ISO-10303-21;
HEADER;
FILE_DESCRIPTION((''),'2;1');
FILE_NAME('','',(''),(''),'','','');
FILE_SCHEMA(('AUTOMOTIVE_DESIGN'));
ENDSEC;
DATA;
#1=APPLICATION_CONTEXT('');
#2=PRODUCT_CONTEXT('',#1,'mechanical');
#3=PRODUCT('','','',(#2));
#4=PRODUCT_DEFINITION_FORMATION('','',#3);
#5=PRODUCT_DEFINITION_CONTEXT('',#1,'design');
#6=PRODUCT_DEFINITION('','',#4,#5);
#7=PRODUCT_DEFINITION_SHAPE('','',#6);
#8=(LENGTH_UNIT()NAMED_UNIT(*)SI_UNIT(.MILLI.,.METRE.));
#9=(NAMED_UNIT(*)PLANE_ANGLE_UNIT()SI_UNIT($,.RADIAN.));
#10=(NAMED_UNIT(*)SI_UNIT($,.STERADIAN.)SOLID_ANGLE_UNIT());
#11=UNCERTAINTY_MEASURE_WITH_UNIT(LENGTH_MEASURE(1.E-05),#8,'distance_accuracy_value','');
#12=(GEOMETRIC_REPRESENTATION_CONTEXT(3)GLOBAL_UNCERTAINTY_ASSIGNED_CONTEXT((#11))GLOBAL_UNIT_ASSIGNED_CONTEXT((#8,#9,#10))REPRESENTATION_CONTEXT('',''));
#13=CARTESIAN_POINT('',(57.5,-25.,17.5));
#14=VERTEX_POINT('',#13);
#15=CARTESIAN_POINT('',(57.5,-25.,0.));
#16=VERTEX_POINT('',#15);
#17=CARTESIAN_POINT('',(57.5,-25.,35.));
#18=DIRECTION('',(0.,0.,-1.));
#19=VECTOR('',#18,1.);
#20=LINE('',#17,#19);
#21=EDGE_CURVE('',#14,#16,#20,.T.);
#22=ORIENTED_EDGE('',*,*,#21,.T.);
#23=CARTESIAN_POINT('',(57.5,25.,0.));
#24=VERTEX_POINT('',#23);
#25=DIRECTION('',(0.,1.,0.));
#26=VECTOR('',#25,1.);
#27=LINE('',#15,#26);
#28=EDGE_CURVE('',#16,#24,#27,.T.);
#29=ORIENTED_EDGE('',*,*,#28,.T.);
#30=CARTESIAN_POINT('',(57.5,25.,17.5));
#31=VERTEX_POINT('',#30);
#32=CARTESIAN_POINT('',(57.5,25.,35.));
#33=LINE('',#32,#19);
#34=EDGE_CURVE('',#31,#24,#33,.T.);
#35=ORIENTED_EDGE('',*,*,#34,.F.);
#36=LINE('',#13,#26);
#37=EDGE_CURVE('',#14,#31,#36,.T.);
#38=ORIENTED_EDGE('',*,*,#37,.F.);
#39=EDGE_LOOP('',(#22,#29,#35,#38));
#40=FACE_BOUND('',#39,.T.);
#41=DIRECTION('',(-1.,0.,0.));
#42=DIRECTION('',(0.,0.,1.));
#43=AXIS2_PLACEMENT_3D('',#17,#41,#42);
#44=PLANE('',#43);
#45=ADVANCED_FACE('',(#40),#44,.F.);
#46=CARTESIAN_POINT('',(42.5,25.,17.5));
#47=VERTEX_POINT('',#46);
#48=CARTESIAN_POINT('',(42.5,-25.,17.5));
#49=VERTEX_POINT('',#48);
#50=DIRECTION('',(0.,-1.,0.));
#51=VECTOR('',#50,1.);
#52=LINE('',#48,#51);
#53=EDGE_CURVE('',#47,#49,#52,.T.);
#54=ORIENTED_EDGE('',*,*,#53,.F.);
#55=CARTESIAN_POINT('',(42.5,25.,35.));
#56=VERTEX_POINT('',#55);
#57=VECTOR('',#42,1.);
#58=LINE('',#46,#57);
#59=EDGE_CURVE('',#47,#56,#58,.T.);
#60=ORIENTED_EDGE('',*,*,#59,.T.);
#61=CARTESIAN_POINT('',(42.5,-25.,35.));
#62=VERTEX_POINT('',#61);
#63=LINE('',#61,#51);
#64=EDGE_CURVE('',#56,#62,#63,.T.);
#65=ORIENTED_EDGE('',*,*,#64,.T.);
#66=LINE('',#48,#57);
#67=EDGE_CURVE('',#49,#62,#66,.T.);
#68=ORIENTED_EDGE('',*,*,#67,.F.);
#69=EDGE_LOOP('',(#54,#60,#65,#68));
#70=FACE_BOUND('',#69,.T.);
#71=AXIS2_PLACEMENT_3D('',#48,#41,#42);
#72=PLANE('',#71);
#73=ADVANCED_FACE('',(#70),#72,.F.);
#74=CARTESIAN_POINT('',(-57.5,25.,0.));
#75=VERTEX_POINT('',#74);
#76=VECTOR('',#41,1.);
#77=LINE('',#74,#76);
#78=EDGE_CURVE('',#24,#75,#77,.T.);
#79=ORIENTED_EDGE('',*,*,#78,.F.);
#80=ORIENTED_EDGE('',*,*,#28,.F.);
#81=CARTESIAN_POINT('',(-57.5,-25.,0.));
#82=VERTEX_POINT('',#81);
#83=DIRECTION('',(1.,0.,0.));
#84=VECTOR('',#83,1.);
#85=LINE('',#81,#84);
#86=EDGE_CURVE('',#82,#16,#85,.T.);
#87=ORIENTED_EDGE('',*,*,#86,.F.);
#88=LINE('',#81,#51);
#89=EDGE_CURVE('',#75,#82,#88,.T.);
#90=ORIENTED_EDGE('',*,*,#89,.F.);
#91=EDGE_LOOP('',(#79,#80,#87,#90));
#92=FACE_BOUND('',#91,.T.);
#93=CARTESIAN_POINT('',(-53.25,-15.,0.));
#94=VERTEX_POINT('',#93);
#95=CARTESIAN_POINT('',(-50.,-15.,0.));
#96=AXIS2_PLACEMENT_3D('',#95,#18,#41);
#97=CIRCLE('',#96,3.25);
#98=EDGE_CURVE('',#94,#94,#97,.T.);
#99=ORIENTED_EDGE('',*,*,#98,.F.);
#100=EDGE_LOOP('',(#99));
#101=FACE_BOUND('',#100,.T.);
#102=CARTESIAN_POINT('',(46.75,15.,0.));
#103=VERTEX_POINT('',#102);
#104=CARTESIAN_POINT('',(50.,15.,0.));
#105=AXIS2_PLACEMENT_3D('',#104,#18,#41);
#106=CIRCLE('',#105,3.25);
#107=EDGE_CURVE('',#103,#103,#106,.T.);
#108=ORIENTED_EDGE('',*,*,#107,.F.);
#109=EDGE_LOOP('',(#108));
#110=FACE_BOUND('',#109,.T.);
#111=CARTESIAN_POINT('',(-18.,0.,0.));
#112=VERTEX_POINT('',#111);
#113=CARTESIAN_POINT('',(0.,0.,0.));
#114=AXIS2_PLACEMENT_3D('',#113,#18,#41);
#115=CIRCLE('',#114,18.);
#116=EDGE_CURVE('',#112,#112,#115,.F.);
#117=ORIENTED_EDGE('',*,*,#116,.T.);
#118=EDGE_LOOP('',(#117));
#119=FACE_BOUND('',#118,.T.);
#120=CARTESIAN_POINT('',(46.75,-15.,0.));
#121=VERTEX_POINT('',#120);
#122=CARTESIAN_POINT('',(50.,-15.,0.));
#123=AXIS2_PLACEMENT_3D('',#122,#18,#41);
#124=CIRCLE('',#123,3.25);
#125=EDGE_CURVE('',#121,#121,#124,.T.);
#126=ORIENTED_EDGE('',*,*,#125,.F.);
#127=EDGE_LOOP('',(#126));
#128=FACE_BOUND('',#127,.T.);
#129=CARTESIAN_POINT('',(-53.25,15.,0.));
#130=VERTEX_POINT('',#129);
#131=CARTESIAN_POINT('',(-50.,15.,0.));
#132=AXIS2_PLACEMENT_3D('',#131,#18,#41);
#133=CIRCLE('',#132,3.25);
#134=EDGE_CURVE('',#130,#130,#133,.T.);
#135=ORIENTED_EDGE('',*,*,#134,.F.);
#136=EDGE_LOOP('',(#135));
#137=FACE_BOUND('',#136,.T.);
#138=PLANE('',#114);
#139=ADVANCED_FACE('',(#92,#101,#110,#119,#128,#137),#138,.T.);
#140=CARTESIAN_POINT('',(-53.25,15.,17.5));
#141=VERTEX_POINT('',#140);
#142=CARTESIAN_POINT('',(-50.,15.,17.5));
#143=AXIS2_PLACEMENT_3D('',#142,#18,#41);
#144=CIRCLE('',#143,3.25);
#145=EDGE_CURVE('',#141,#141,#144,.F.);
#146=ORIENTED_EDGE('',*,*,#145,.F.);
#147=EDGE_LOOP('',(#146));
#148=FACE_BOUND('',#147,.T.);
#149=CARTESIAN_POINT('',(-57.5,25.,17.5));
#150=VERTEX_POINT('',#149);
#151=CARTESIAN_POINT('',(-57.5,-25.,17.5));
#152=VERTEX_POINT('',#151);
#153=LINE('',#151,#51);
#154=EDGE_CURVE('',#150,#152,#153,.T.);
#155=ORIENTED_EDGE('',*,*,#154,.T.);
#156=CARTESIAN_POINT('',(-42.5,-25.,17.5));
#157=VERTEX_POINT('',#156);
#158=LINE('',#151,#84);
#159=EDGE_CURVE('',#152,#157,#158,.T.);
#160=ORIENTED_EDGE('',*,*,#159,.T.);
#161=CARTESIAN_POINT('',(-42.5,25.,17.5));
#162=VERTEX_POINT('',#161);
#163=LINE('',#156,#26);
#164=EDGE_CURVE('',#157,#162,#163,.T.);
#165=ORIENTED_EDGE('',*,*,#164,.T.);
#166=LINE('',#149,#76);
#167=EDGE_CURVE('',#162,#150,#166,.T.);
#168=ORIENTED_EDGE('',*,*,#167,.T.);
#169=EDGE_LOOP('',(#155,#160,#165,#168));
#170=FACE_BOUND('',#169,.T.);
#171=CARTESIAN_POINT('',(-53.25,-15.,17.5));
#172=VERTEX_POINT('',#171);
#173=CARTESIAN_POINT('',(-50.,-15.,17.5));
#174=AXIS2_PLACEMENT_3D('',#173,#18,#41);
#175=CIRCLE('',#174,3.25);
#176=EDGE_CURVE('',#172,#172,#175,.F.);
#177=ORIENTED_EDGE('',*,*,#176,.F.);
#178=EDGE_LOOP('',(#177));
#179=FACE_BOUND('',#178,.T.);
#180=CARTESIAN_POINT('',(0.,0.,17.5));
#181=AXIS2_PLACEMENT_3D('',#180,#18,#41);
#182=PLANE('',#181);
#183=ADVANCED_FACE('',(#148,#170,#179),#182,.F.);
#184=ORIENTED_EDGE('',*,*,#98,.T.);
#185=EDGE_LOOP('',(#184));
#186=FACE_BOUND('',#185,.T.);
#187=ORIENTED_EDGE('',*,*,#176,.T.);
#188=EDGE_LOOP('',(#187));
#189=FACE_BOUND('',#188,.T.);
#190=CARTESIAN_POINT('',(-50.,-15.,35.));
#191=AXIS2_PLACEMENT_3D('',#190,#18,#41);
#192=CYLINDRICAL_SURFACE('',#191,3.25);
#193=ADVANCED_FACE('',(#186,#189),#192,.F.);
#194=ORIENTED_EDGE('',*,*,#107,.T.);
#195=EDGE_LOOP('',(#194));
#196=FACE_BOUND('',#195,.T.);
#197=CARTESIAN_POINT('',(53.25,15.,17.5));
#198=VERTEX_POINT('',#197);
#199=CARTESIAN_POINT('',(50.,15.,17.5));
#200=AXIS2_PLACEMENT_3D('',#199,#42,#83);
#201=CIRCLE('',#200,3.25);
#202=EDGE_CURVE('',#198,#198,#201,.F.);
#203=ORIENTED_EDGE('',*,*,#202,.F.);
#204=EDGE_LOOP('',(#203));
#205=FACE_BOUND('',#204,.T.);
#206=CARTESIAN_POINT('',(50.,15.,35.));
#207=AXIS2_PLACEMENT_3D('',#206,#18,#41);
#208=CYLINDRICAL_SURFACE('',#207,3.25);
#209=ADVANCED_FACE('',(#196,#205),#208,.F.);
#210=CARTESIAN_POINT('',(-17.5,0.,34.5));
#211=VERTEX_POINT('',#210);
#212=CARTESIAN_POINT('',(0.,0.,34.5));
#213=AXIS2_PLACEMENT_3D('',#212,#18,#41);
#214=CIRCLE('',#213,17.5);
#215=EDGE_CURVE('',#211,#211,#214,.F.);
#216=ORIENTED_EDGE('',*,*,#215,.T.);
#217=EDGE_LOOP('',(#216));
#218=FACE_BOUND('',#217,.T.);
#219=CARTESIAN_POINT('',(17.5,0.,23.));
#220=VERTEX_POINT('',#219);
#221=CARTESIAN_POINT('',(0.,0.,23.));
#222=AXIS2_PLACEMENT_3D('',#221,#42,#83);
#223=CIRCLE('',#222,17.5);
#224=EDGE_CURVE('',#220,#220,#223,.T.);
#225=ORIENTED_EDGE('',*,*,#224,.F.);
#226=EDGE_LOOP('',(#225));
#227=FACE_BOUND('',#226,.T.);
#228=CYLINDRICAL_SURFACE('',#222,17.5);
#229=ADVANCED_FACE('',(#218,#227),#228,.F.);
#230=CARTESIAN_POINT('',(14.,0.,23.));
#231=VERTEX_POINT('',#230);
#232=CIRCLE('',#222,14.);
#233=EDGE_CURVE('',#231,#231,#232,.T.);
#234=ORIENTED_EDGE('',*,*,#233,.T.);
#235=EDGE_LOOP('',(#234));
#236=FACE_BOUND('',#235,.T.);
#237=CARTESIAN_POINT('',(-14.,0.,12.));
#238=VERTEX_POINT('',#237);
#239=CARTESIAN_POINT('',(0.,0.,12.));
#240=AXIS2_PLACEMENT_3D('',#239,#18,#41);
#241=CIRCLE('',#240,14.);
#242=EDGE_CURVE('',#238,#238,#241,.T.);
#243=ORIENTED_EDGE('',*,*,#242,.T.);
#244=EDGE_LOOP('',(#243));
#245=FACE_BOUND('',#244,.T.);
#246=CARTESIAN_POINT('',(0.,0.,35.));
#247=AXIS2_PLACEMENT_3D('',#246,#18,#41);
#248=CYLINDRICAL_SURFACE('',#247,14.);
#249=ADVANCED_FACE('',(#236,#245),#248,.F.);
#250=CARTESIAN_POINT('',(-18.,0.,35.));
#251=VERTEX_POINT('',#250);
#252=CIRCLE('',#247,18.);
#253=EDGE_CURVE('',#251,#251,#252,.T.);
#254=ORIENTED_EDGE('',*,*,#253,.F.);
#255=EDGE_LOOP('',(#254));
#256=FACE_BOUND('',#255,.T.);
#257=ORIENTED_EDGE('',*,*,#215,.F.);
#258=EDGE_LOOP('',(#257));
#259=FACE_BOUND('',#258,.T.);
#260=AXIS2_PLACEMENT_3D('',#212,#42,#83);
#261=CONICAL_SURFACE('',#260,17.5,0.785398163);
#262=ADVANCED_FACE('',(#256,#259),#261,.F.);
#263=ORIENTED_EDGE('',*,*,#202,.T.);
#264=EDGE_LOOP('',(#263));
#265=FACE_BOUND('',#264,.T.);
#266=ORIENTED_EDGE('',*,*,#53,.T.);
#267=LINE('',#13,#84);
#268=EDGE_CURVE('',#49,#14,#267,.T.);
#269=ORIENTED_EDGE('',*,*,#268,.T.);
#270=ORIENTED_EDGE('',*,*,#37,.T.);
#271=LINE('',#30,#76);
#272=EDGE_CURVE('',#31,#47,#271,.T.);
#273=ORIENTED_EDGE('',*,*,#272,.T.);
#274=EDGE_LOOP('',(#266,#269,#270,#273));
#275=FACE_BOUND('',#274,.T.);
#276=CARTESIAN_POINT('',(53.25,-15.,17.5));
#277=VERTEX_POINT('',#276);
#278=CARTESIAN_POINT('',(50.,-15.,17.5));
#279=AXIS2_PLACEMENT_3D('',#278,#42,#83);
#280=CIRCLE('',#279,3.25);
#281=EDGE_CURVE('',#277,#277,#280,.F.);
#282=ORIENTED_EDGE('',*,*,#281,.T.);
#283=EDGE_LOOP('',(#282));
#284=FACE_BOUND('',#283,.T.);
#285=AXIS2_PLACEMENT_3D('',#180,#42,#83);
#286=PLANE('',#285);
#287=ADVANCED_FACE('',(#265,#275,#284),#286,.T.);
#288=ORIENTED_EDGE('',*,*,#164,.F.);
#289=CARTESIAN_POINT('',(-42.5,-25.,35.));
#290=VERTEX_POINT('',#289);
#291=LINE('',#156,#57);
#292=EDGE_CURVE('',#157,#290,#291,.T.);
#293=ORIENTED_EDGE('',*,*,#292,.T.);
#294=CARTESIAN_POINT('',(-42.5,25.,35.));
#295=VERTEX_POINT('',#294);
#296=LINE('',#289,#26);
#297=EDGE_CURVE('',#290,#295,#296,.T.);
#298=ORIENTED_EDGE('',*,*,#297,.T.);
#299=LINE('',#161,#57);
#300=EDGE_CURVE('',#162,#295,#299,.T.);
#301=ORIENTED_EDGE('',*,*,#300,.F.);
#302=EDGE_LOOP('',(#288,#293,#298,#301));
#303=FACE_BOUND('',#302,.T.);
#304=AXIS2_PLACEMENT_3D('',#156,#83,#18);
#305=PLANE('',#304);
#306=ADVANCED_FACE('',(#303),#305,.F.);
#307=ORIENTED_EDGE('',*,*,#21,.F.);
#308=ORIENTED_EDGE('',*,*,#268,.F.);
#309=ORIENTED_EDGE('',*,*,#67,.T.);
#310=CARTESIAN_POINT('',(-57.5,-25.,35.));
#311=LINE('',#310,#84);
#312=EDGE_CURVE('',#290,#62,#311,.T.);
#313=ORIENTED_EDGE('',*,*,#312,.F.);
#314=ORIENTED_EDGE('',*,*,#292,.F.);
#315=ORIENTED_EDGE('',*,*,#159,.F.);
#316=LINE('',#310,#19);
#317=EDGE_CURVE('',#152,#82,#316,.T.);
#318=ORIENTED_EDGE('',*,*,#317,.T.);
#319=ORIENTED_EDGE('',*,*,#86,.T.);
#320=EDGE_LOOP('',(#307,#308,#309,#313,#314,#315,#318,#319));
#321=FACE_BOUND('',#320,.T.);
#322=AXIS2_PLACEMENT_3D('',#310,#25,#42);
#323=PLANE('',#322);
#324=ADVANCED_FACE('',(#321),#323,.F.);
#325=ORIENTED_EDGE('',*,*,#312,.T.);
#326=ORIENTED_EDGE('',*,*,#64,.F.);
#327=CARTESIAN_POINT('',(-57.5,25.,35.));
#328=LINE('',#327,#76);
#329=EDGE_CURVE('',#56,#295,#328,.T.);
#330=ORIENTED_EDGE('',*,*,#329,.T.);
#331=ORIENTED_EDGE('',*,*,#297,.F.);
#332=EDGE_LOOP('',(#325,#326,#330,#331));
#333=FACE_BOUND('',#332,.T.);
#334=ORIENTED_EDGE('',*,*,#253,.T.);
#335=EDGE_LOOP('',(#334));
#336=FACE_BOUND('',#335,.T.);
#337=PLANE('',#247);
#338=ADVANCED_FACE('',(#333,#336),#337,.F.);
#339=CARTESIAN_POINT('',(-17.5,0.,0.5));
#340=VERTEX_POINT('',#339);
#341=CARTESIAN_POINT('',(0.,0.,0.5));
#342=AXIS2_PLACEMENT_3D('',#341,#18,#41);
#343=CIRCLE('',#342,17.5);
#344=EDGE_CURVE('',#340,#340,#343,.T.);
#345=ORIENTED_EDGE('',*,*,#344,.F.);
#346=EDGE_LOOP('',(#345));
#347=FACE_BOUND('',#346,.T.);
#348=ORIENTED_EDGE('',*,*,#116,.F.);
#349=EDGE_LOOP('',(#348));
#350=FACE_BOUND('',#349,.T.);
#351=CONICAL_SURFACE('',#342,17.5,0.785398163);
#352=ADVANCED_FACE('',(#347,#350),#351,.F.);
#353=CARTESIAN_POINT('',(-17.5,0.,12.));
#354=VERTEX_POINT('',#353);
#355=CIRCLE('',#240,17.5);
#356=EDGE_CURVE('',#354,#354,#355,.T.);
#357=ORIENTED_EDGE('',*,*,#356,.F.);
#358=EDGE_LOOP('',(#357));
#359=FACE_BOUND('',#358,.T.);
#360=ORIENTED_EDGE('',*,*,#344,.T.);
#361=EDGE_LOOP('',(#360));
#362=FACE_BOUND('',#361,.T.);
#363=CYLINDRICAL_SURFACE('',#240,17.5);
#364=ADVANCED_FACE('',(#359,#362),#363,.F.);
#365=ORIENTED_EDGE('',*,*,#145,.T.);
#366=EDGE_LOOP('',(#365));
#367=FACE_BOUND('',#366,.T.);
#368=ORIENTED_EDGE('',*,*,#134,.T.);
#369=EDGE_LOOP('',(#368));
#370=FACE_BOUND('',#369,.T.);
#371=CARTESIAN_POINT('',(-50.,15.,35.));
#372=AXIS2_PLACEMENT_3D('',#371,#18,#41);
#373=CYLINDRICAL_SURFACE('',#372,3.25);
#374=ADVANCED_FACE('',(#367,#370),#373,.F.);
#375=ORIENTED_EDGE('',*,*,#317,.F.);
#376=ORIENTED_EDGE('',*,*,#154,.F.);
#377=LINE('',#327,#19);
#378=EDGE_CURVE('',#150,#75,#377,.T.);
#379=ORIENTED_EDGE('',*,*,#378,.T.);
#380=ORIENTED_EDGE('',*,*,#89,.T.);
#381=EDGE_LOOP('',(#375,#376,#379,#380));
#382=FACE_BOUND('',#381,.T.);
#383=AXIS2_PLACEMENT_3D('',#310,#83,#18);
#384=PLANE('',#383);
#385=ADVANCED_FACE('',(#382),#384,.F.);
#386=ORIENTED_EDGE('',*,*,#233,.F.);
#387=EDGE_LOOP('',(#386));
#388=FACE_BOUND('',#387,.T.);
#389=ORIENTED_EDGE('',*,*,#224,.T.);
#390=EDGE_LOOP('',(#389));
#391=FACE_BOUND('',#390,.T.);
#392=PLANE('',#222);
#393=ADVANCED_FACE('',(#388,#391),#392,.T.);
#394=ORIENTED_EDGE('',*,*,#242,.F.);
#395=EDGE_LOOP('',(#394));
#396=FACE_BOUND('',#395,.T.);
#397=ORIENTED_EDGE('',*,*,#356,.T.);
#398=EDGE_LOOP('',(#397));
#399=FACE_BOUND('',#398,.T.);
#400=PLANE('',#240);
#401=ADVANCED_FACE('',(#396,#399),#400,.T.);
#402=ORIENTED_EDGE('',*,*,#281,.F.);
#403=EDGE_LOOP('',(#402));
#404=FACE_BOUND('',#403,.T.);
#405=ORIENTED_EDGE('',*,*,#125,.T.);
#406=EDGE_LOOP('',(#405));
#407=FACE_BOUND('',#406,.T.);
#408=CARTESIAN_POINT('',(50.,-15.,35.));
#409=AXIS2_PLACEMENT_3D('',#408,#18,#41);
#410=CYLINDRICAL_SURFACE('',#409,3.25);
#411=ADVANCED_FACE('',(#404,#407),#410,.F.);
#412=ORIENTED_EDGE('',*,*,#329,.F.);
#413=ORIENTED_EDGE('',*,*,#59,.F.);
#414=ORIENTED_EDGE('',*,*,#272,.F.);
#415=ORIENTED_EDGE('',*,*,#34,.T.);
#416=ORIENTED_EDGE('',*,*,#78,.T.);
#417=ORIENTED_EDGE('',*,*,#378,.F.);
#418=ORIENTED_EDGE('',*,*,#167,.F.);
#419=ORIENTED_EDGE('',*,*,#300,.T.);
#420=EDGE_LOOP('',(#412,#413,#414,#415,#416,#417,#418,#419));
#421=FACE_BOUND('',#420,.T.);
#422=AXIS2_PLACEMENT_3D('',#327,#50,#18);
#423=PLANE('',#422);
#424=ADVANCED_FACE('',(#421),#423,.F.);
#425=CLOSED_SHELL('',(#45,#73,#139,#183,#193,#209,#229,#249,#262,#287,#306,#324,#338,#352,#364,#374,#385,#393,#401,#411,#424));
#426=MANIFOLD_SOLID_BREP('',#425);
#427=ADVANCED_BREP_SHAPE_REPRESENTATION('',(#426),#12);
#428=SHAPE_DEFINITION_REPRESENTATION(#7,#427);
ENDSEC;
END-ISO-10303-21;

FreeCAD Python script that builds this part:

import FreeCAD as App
import Part
import Sketcher
from FreeCAD import Vector


def edges_at(feature, points):
    """Names of the edges that pass closest to the given points."""
    edges = feature.Shape.Edges
    near = lambda p: min(range(len(edges)), key=lambda i: edges[i].distToShape(Part.Vertex(*p))[0])
    return sorted({f"Edge{near(p) + 1}" for p in points})


def add_polygon(sketch, points):
    """Adds a closed chain of lines whose ends are joined by coincident constraints."""
    first, n = sketch.GeometryCount, len(points)
    for a, b in zip(points, points[1:] + points[:1]):
        sketch.addGeometry(Part.LineSegment(App.Vector(*a, 0), App.Vector(*b, 0)), False)
    for i in range(n):
        sketch.addConstraint(Sketcher.Constraint("Coincident", first + i, 2, first + (i + 1) % n, 1))

doc = App.newDocument("Part")
params = doc.addObject("Spreadsheet::Sheet", "Params")
for row, (alias, value) in enumerate([
    ("sketch1_diameter", "28 mm"),
    ("sketch1_width", "115 mm"),
    ("sketch1_height", "50 mm"),
    ("pad1_length", "35 mm"),
    ("sketch2_diameter", "35 mm"),
    ("pocket1_length", "12 mm"),
    ("sketch3_diameter", "35 mm"),
    ("pocket2_length", "12 mm"),
    ("sketch4_diameter", "6.5 mm"),
    ("sketch5_width", "15 mm"),
    ("sketch5_height", "50 mm"),
    ("pocket4_length", "17.5 mm"),
    ("chamfer_size", "0.5 mm"),
], start=1):
    params.set(f"A{row}", alias)
    params.set(f"B{row}", "=" + value)
    params.setAlias(f"B{row}", alias)

body = doc.addObject("PartDesign::Body", "Body")

# Sketch on XY plane
sketch1 = body.newObject("Sketcher::SketchObject", "Sketch")
sketch1.AttachmentSupport = (doc.getObject("XY_Plane"), [""])
sketch1.MapMode = "FlatFace"
add_polygon(sketch1, [(-57.5, 25), (-57.5, -25), (57.5, -25), (57.5, 25)])  # lines 0-3
sketch1.addGeometry(Part.Circle(Vector(0, 0, 0), Vector(0, 0, 1), 14), False)  # 4
sketch1.addConstraint([
    Sketcher.Constraint("Vertical", 0),
    Sketcher.Constraint("Horizontal", 1),
    Sketcher.Constraint("Vertical", 2),
    Sketcher.Constraint("Horizontal", 3),
    Sketcher.Constraint("Coincident", 4, 3, -1, 1),
    Sketcher.Constraint("Symmetric", 0, 2, 2, 2, -1, 1),
    Sketcher.Constraint("Diameter", 4, 28.0),
    Sketcher.Constraint("DistanceX", 1, 1, 1, 2, 115.0),
    Sketcher.Constraint("DistanceY", 0, 2, 0, 1, 50.0),
])
sketch1.setExpression("Constraints[10]", "Params.sketch1_diameter")
sketch1.setExpression("Constraints[11]", "Params.sketch1_width")
sketch1.setExpression("Constraints[12]", "Params.sketch1_height")
pad1 = body.newObject("PartDesign::Pad", "Pad")
pad1.Profile = sketch1
pad1.setExpression("Length", "Params.pad1_length")

# Sketch on XY plane
sketch2 = body.newObject("Sketcher::SketchObject", "Sketch001")
sketch2.AttachmentSupport = (doc.getObject("XY_Plane"), [""])
sketch2.MapMode = "FlatFace"
sketch2.AttachmentOffset = App.Placement(Vector(0, 0, 35), App.Rotation())
sketch2.addGeometry(Part.Circle(Vector(0, 0, 0), Vector(0, 0, 1), 17.5), False)
sketch2.addConstraint([
    Sketcher.Constraint("Coincident", 0, 3, -1, 1),
    Sketcher.Constraint("Diameter", 0, 35.0),
])
sketch2.setExpression("Constraints[1]", "Params.sketch2_diameter")
pocket1 = body.newObject("PartDesign::Pocket", "Pocket")
pocket1.Profile = sketch2
pocket1.setExpression("Length", "Params.pocket1_length")

# Sketch on XY plane
sketch3 = body.newObject("Sketcher::SketchObject", "Sketch002")
sketch3.AttachmentSupport = (doc.getObject("XY_Plane"), [""])
sketch3.MapMode = "FlatFace"
sketch3.addGeometry(Part.Circle(Vector(0, 0, 0), Vector(0, 0, 1), 17.5), False)
sketch3.addConstraint([
    Sketcher.Constraint("Coincident", 0, 3, -1, 1),
    Sketcher.Constraint("Diameter", 0, 35.0),
])
sketch3.setExpression("Constraints[1]", "Params.sketch3_diameter")
pocket2 = body.newObject("PartDesign::Pocket", "Pocket001")
pocket2.Profile = sketch3
pocket2.setExpression("Length", "Params.pocket2_length")
pocket2.Reversed = True

# Sketch on XY plane
sketch4 = body.newObject("Sketcher::SketchObject", "Sketch003")
sketch4.AttachmentSupport = (doc.getObject("XY_Plane"), [""])
sketch4.MapMode = "FlatFace"
sketch4.addGeometry([
    Part.Circle(Vector(50, 15, 0), Vector(0, 0, 1), 3.25),
    Part.Circle(Vector(50, -15, 0), Vector(0, 0, 1), 3.25),
    Part.Circle(Vector(-50, 15, 0), Vector(0, 0, 1), 3.25),
    Part.Circle(Vector(-50, -15, 0), Vector(0, 0, 1), 3.25),
], False)
sketch4.addConstraint([
    Sketcher.Constraint("Equal", 0, 1),
    Sketcher.Constraint("Equal", 1, 2),
    Sketcher.Constraint("Equal", 2, 3),
    Sketcher.Constraint("Symmetric", 1, 3, 2, 3, -1, 1),
    Sketcher.Constraint("Symmetric", 0, 3, 3, 3, -1, 1),
    Sketcher.Constraint("Symmetric", 0, 3, 2, 3, -2),
    Sketcher.Constraint("Diameter", 0, 6.5),
    Sketcher.Constraint("DistanceX", -1, 1, 0, 3, 50.0),
    Sketcher.Constraint("DistanceY", -1, 1, 0, 3, 15.0),
])
sketch4.setExpression("Constraints[6]", "Params.sketch4_diameter")
pocket3 = body.newObject("PartDesign::Pocket", "Pocket002")
pocket3.Profile = sketch4
pocket3.Type = "ThroughAll"
pocket3.Reversed = True

# Sketch on XY plane
sketch5 = body.newObject("Sketcher::SketchObject", "Sketch004")
sketch5.AttachmentSupport = (doc.getObject("XY_Plane"), [""])
sketch5.MapMode = "FlatFace"
sketch5.AttachmentOffset = App.Placement(Vector(0, 0, 35), App.Rotation())
add_polygon(sketch5, [(42.5, 25), (42.5, -25), (57.5, -25), (57.5, 25)])  # lines 0-3
add_polygon(sketch5, [(-57.5, 25), (-57.5, -25), (-42.5, -25), (-42.5, 25)])  # lines 4-7
sketch5.addConstraint([
    Sketcher.Constraint("Vertical", 0),
    Sketcher.Constraint("Horizontal", 1),
    Sketcher.Constraint("Vertical", 2),
    Sketcher.Constraint("Horizontal", 3),
    Sketcher.Constraint("Vertical", 4),
    Sketcher.Constraint("Horizontal", 5),
    Sketcher.Constraint("Vertical", 6),
    Sketcher.Constraint("Horizontal", 7),
    Sketcher.Constraint("Symmetric", 2, 2, 4, 2, -1, 1),
    Sketcher.Constraint("Symmetric", 0, 2, 6, 2, -1, 1),
    Sketcher.Constraint("Horizontal", 1, 2, 4, 2),
    Sketcher.Constraint("DistanceX", 1, 1, 1, 2, 15.0),
    Sketcher.Constraint("DistanceY", 0, 2, 0, 1, 50.0),
    Sketcher.Constraint("DistanceX", 4, 2, 0, 2, 100.0),
])
sketch5.setExpression("Constraints[19]", "Params.sketch5_width")
sketch5.setExpression("Constraints[20]", "Params.sketch5_height")
pocket4 = body.newObject("PartDesign::Pocket", "Pocket003")
pocket4.Profile = sketch5
pocket4.setExpression("Length", "Params.pocket4_length")
doc.recompute()

chamfer = body.newObject("PartDesign::Chamfer", "Chamfer")
chamfer.Base = (pocket4, edges_at(pocket4, [(-17.5, 0, 35), (17.5, 0, 0)]))
chamfer.setExpression("Size", "Params.chamfer_size")

doc.recompute()
